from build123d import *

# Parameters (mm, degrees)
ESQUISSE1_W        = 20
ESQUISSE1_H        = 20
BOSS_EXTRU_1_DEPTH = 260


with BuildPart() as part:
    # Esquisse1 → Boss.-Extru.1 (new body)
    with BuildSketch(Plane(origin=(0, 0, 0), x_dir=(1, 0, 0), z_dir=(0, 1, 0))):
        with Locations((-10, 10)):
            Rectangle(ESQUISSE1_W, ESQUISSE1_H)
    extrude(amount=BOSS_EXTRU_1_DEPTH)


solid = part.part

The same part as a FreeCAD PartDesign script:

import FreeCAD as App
import Part
import Sketcher
from FreeCAD import Vector
Q = App.Units.Quantity


def add_polygon(sketch, points):
    """Adds a closed chain of lines whose ends are joined by coincident constraints."""
    first, n = sketch.GeometryCount, len(points)
    for a, b in zip(points, points[1:] + points[:1]):
        sketch.addGeometry(Part.LineSegment(App.Vector(*a, 0), App.Vector(*b, 0)), False)
    for i in range(n):
        sketch.addConstraint(Sketcher.Constraint("Coincident", first + i, 2, first + (i + 1) % n, 1))

doc = App.newDocument("Part")
body = doc.addObject("PartDesign::Body", "Body")

sketch1 = body.newObject("Sketcher::SketchObject", "Sketch")
sketch1.AttachmentSupport = (doc.getObject("XZ_Plane"), [""])
sketch1.MapMode = "FlatFace"
add_polygon(sketch1, [(-20, -20), (-20, 0), (0, 0), (0, -20)])
sketch1.addConstraint([
    Sketcher.Constraint("Vertical", 0),
    Sketcher.Constraint("Horizontal", 1),
    Sketcher.Constraint("Vertical", 2),
    Sketcher.Constraint("Horizontal", 3),
    Sketcher.Constraint("Coincident", 1, 2, -1, 1),
    Sketcher.Constraint("Equal", 3, 0),
    Sketcher.Constraint("DistanceX", 1, 1, 1, 2, Q("20 mm")),
])
pad1 = body.newObject("PartDesign::Pad", "Pad")
pad1.Profile = sketch1
pad1.Length = 260
pad1.Reversed = True

doc.recompute()
